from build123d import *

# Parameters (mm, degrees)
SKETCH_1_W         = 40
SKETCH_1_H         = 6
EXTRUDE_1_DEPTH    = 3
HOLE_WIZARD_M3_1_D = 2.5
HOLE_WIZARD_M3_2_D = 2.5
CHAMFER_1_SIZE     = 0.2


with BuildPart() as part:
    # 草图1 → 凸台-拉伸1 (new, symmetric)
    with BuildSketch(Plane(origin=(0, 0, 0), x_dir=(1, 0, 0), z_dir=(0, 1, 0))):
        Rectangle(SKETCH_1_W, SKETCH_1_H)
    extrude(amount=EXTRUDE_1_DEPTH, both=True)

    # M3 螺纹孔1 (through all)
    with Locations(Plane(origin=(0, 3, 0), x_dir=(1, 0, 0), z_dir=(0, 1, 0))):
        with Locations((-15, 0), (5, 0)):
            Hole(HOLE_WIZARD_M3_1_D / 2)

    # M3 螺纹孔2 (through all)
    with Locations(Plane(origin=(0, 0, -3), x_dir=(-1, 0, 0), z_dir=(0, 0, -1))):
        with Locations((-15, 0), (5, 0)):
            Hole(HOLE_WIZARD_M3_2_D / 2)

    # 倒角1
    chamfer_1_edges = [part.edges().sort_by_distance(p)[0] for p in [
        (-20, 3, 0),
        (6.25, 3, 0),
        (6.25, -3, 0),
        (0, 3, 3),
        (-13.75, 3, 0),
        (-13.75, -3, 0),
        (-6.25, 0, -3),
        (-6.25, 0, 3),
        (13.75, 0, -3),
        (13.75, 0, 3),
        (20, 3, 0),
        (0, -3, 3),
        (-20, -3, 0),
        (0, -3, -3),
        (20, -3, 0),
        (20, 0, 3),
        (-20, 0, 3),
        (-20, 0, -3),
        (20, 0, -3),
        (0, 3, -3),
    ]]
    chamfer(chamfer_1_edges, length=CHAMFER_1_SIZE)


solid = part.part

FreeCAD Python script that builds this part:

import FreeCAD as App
import Part
import Sketcher

V = App.Vector
Q = App.Units.Quantity

doc = App.newDocument("Part")
params = doc.addObject("Spreadsheet::Sheet", "Params")
for row, (alias, value) in enumerate([
    ("sketch1_width", "40 mm"),
    ("sketch1_height", "6 mm"),
    ("pad1_length", "6 mm"),
    ("sketch2_diameter", "2.5 mm"),
    ("hole_diameter", "2.5 mm"),
    ("sketch3_diameter", "2.5 mm"),
    ("hole2_diameter", "2.5 mm"),
    ("chamfer_size", "0.2 mm"),
], start=1):
    params.set(f"A{row}", alias)
    params.set(f"B{row}", "=" + value)
    params.setAlias(f"B{row}", alias)

body = doc.addObject("PartDesign::Body", "Body")

# Sketch on XZ plane
sketch1 = body.newObject("Sketcher::SketchObject", "Sketch")
sketch1.AttachmentSupport = (doc.getObject("XZ_Plane"), [""])
sketch1.MapMode = "FlatFace"
sketch1.addGeometry([
    Part.LineSegment(V(-20, -3, 0), V(-20, 3, 0)),
    Part.LineSegment(V(-20, 3, 0), V(20, 3, 0)),
    Part.LineSegment(V(20, 3, 0), V(20, -3, 0)),
    Part.LineSegment(V(20, -3, 0), V(-20, -3, 0)),
], False)
sketch1.addConstraint([
    Sketcher.Constraint("Coincident", 0, 2, 1, 1),
    Sketcher.Constraint("Coincident", 1, 2, 2, 1),
    Sketcher.Constraint("Coincident", 2, 2, 3, 1),
    Sketcher.Constraint("Coincident", 3, 2, 0, 1),
    Sketcher.Constraint("Vertical", 0),
    Sketcher.Constraint("Horizontal", 1),
    Sketcher.Constraint("Vertical", 2),
    Sketcher.Constraint("Horizontal", 3),
    Sketcher.Constraint("Symmetric", 0, 2, 2, 2, -1, 1),
    Sketcher.Constraint("DistanceX", 1, 1, 1, 2, Q("40 mm")),
    Sketcher.Constraint("DistanceY", 0, 1, 0, 2, Q("6 mm")),
])
sketch1.setExpression("Constraints[9]", "Params.sketch1_width")
sketch1.setExpression("Constraints[10]", "Params.sketch1_height")
pad1 = body.newObject("PartDesign::Pad", "Pad")
pad1.Profile = sketch1
pad1.setExpression("Length", "Params.pad1_length")
pad1.Midplane = True

# Sketch on XZ plane
sketch2 = body.newObject("Sketcher::SketchObject", "Sketch001")
sketch2.AttachmentSupport = (doc.getObject("XZ_Plane"), [""])
sketch2.MapMode = "FlatFace"
sketch2.AttachmentOffset = App.Placement(V(0, 0, -3), App.Rotation())
sketch2.addGeometry([
    Part.Circle(V(-15, 0, 0), V(0, 0, 1), 1.2),
    Part.Circle(V(5, 0, 0), V(0, 0, 1), 1.2),
], False)
sketch2.addConstraint([
    Sketcher.Constraint("Equal", 0, 1),
    Sketcher.Constraint("PointOnObject", 0, 3, -1),
    Sketcher.Constraint("PointOnObject", 1, 3, -1),
    Sketcher.Constraint("Diameter", 0, Q("2.5 mm")),
    Sketcher.Constraint("DistanceX", 0, 3, -1, 1, Q("15 mm")),
    Sketcher.Constraint("DistanceX", -1, 1, 1, 3, Q("5 mm")),
])
sketch2.setExpression("Constraints[3]", "Params.sketch2_diameter")
doc.recompute()
hole = body.newObject("PartDesign::Hole", "Hole")
hole.Profile = sketch2
hole.ThreadType = "None"
hole.setExpression("Diameter", "Params.hole_diameter")
hole.DepthType = "ThroughAll"
hole.Reversed = True

# Sketch on XY plane
sketch3 = body.newObject("Sketcher::SketchObject", "Sketch002")
sketch3.AttachmentSupport = (doc.getObject("XY_Plane"), [""])
sketch3.MapMode = "FlatFace"
sketch3.AttachmentOffset = App.Placement(V(0, 0, -3), App.Rotation())
sketch3.addGeometry([
    Part.Circle(V(15, 0, 0), V(0, 0, 1), 1.2),
    Part.Circle(V(-5, 0, 0), V(0, 0, 1), 1.2),
], False)
sketch3.addConstraint([
    Sketcher.Constraint("Equal", 0, 1),
    Sketcher.Constraint("PointOnObject", 0, 3, -1),
    Sketcher.Constraint("PointOnObject", 1, 3, -1),
    Sketcher.Constraint("Diameter", 0, Q("2.5 mm")),
    Sketcher.Constraint("DistanceX", -1, 1, 0, 3, Q("15 mm")),
    Sketcher.Constraint("DistanceX", 1, 3, -1, 1, Q("5 mm")),
])
sketch3.setExpression("Constraints[3]", "Params.sketch3_diameter")
doc.recompute()
hole2 = body.newObject("PartDesign::Hole", "Hole001")
hole2.Profile = sketch3
hole2.ThreadType = "None"
hole2.setExpression("Diameter", "Params.hole2_diameter")
hole2.DepthType = "ThroughAll"
hole2.Reversed = True
doc.recompute()

chamfer = body.newObject("PartDesign::Chamfer", "Chamfer")
chamfer.Base = (hole2, ["Edge1"])
chamfer.UseAllEdges = True
chamfer.setExpression("Size", "Params.chamfer_size")

doc.recompute()
